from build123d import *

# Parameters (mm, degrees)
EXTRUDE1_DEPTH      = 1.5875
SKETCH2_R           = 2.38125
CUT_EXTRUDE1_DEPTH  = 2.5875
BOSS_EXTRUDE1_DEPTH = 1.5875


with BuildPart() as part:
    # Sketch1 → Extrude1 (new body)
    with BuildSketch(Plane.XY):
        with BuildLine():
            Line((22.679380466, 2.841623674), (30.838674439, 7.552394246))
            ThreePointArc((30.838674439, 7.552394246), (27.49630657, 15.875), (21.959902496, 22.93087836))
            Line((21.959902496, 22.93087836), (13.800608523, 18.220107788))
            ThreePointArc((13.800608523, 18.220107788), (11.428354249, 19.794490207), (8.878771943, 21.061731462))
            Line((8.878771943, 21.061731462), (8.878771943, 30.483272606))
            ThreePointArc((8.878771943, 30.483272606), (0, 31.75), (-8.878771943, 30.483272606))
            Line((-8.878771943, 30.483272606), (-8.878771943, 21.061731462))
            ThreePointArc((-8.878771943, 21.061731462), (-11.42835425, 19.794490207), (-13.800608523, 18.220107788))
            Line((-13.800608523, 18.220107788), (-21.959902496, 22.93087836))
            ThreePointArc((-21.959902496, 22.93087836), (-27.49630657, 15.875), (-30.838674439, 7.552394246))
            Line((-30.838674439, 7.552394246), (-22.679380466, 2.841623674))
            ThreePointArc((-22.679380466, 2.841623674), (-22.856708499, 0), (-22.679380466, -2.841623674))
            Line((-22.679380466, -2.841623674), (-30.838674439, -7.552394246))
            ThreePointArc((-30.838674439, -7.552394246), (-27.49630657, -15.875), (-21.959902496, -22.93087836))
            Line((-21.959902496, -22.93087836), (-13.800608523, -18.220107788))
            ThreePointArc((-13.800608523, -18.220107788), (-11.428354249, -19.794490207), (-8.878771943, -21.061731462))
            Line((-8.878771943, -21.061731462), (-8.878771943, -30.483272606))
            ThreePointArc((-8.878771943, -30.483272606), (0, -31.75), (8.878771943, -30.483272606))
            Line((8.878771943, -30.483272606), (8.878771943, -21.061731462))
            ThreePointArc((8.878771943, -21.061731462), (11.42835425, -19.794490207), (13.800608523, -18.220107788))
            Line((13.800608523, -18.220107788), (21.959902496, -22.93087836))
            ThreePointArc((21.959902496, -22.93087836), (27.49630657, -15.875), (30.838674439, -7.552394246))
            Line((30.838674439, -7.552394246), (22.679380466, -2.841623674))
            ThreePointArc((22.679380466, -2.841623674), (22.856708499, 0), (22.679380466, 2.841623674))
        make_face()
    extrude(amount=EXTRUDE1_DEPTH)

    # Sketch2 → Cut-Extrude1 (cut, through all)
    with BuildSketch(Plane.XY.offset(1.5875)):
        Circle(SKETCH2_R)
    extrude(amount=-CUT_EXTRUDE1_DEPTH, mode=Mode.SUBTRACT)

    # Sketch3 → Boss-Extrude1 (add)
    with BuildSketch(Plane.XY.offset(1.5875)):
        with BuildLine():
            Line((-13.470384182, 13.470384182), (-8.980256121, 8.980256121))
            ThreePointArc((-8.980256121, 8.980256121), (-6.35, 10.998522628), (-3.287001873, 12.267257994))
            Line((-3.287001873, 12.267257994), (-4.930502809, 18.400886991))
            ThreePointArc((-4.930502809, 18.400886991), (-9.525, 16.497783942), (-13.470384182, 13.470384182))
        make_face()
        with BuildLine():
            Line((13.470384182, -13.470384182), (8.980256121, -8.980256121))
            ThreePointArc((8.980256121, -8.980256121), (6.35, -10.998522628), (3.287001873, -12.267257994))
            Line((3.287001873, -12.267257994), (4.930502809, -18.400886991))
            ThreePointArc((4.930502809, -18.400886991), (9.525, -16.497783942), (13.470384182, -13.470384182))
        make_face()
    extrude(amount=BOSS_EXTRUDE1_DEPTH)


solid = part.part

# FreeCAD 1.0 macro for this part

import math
import FreeCAD as App
import Part
import Sketcher
from FreeCAD import Vector
Q = App.Units.Quantity

doc = App.newDocument("Part")
params = doc.addObject("Spreadsheet::Sheet", "Params")
for row, (alias, value) in enumerate([
    ("sketch1_radius", "1.25 in"),
    ("pad1_length", "0.0625 in"),
    ("sketch2_diameter", "0.1875 in"),
    ("sketch3_radius", "0.5 in"),
    ("sketch3_radius2", "0.75 in"),
    ("pad2_length", "0.0625 in"),
], start=1):
    params.set(f"A{row}", alias)
    params.set(f"B{row}", "=" + value)
    params.setAlias(f"B{row}", alias)

body = doc.addObject("PartDesign::Body", "Body")

sketch1 = body.newObject("Sketcher::SketchObject", "Sketch")
sketch1.AttachmentSupport = (doc.getObject("XY_Plane"), [""])
sketch1.MapMode = "FlatFace"
sketch1.addGeometry(Part.LineSegment(Vector(22.67938, 2.841624, 0), Vector(30.838674, 7.552394, 0)), False)
sketch1.addGeometry(Part.ArcOfCircle(Part.Circle(Vector(0, 0, 0), Vector(0, 0, 1), 31.75), math.radians(13.7609), math.radians(46.2391)), False)
sketch1.addGeometry(Part.LineSegment(Vector(21.959902, 22.930878, 0), Vector(13.800609, 18.220108, 0)), False)
sketch1.addGeometry(Part.ArcOfCircle(Part.Circle(Vector(0, 0, 0), Vector(0, 0, 1), 22.856709), math.radians(52.858315), math.radians(67.141685)), False)
sketch1.addGeometry(Part.LineSegment(Vector(8.878772, 21.061731, 0), Vector(8.878772, 30.483273, 0)), False)
sketch1.addGeometry(Part.ArcOfCircle(Part.Circle(Vector(0, 0, 0), Vector(0, 0, 1), 31.75), math.radians(73.7609), math.radians(106.2391)), False)
sketch1.addGeometry(Part.LineSegment(Vector(-8.878772, 30.483273, 0), Vector(-8.878772, 21.061731, 0)), False)
sketch1.addGeometry(Part.ArcOfCircle(Part.Circle(Vector(0, 0, 0), Vector(0, 0, 1), 22.856708), math.radians(112.858315), math.radians(127.141685)), False)
sketch1.addGeometry(Part.LineSegment(Vector(-13.800609, 18.220108, 0), Vector(-21.959902, 22.930878, 0)), False)
sketch1.addGeometry(Part.ArcOfCircle(Part.Circle(Vector(0, 0, 0), Vector(0, 0, 1), 31.75), math.radians(133.7609), math.radians(166.2391)), False)
sketch1.addGeometry(Part.LineSegment(Vector(-30.838674, 7.552394, 0), Vector(-22.67938, 2.841624, 0)), False)
sketch1.addGeometry(Part.ArcOfCircle(Part.Circle(Vector(0, 0, 0), Vector(0, 0, 1), 22.856709), math.radians(172.858315), math.radians(187.141685)), False)
sketch1.addGeometry(Part.LineSegment(Vector(-22.67938, -2.841624, 0), Vector(-30.838674, -7.552394, 0)), False)
sketch1.addGeometry(Part.ArcOfCircle(Part.Circle(Vector(0, 0, 0), Vector(0, 0, 1), 31.75), math.radians(-166.2391), math.radians(-133.7609)), False)
sketch1.addGeometry(Part.LineSegment(Vector(-21.959902, -22.930878, 0), Vector(-13.800609, -18.220108, 0)), False)
sketch1.addGeometry(Part.ArcOfCircle(Part.Circle(Vector(0, 0, 0), Vector(0, 0, 1), 22.856709), math.radians(-127.141685), math.radians(-112.858315)), False)
sketch1.addGeometry(Part.LineSegment(Vector(-8.878772, -21.061731, 0), Vector(-8.878772, -30.483273, 0)), False)
sketch1.addGeometry(Part.ArcOfCircle(Part.Circle(Vector(0, 0, 0), Vector(0, 0, 1), 31.75), math.radians(-106.2391), math.radians(-73.7609)), False)
sketch1.addGeometry(Part.LineSegment(Vector(8.878772, -30.483273, 0), Vector(8.878772, -21.061731, 0)), False)
sketch1.addGeometry(Part.ArcOfCircle(Part.Circle(Vector(0, 0, 0), Vector(0, 0, 1), 22.856708), math.radians(-67.141685), math.radians(-52.858315)), False)
sketch1.addGeometry(Part.LineSegment(Vector(13.800609, -18.220108, 0), Vector(21.959902, -22.930878, 0)), False)
sketch1.addGeometry(Part.ArcOfCircle(Part.Circle(Vector(0, 0, 0), Vector(0, 0, 1), 31.75), math.radians(-46.2391), math.radians(-13.7609)), False)
sketch1.addGeometry(Part.LineSegment(Vector(30.838674, -7.552394, 0), Vector(22.67938, -2.841624, 0)), False)
sketch1.addGeometry(Part.ArcOfCircle(Part.Circle(Vector(0, 0, 0), Vector(0, 0, 1), 22.856709), math.radians(-7.141685), math.radians(7.141685)), False)
sketch1.addConstraint(Sketcher.Constraint("Coincident", 0, 2, 1, 1))
sketch1.addConstraint(Sketcher.Constraint("Coincident", 1, 2, 2, 1))
sketch1.addConstraint(Sketcher.Constraint("Coincident", 2, 2, 3, 1))
sketch1.addConstraint(Sketcher.Constraint("Coincident", 3, 2, 4, 1))
sketch1.addConstraint(Sketcher.Constraint("Coincident", 4, 2, 5, 1))
sketch1.addConstraint(Sketcher.Constraint("Coincident", 5, 2, 6, 1))
sketch1.addConstraint(Sketcher.Constraint("Coincident", 6, 2, 7, 1))
sketch1.addConstraint(Sketcher.Constraint("Coincident", 7, 2, 8, 1))
sketch1.addConstraint(Sketcher.Constraint("Coincident", 8, 2, 9, 1))
sketch1.addConstraint(Sketcher.Constraint("Coincident", 9, 2, 10, 1))
sketch1.addConstraint(Sketcher.Constraint("Coincident", 10, 2, 11, 1))
sketch1.addConstraint(Sketcher.Constraint("Coincident", 11, 2, 12, 1))
sketch1.addConstraint(Sketcher.Constraint("Coincident", 12, 2, 13, 1))
sketch1.addConstraint(Sketcher.Constraint("Coincident", 13, 2, 14, 1))
sketch1.addConstraint(Sketcher.Constraint("Coincident", 14, 2, 15, 1))
sketch1.addConstraint(Sketcher.Constraint("Coincident", 15, 2, 16, 1))
sketch1.addConstraint(Sketcher.Constraint("Coincident", 16, 2, 17, 1))
sketch1.addConstraint(Sketcher.Constraint("Coincident", 17, 2, 18, 1))
sketch1.addConstraint(Sketcher.Constraint("Coincident", 18, 2, 19, 1))
sketch1.addConstraint(Sketcher.Constraint("Coincident", 19, 2, 20, 1))
sketch1.addConstraint(Sketcher.Constraint("Coincident", 20, 2, 21, 1))
sketch1.addConstraint(Sketcher.Constraint("Coincident", 21, 2, 22, 1))
sketch1.addConstraint(Sketcher.Constraint("Coincident", 22, 2, 23, 1))
sketch1.addConstraint(Sketcher.Constraint("Coincident", 23, 2, 0, 1))
sketch1.addConstraint(Sketcher.Constraint("Vertical", 4))
sketch1.addConstraint(Sketcher.Constraint("Vertical", 6))
sketch1.addConstraint(Sketcher.Constraint("Vertical", 16))
sketch1.addConstraint(Sketcher.Constraint("Vertical", 18))
sketch1.addConstraint(Sketcher.Constraint("Coincident", 1, 3, -1, 1))
sketch1.addConstraint(Sketcher.Constraint("Coincident", 3, 3, -1, 1))
sketch1.addConstraint(Sketcher.Constraint("Coincident", 5, 3, -1, 1))
sketch1.addConstraint(Sketcher.Constraint("Coincident", 7, 3, -1, 1))
sketch1.addConstraint(Sketcher.Constraint("Coincident", 9, 3, -1, 1))
sketch1.addConstraint(Sketcher.Constraint("Coincident", 11, 3, -1, 1))
sketch1.addConstraint(Sketcher.Constraint("Coincident", 13, 3, -1, 1))
sketch1.addConstraint(Sketcher.Constraint("Coincident", 15, 3, -1, 1))
sketch1.addConstraint(Sketcher.Constraint("Coincident", 17, 3, -1, 1))
sketch1.addConstraint(Sketcher.Constraint("Coincident", 19, 3, -1, 1))
sketch1.addConstraint(Sketcher.Constraint("Coincident", 21, 3, -1, 1))
sketch1.addConstraint(Sketcher.Constraint("Coincident", 23, 3, -1, 1))
sketch1.addConstraint(Sketcher.Constraint("Equal", 1, 5))
sketch1.addConstraint(Sketcher.Constraint("Equal", 3, 7))
sketch1.addConstraint(Sketcher.Constraint("Equal", 5, 9))
sketch1.addConstraint(Sketcher.Constraint("Equal", 7, 11))
sketch1.addConstraint(Sketcher.Constraint("Equal", 9, 13))
sketch1.addConstraint(Sketcher.Constraint("Equal", 11, 15))
sketch1.addConstraint(Sketcher.Constraint("Equal", 13, 17))
sketch1.addConstraint(Sketcher.Constraint("Equal", 15, 19))
sketch1.addConstraint(Sketcher.Constraint("Equal", 17, 21))
sketch1.addConstraint(Sketcher.Constraint("Equal", 19, 23))
sketch1.addConstraint(Sketcher.Constraint("Parallel", 0, 2))
sketch1.addConstraint(Sketcher.Constraint("Parallel", 8, 10))
sketch1.addConstraint(Sketcher.Constraint("Parallel", 2, 12))
sketch1.addConstraint(Sketcher.Constraint("Parallel", 12, 14))
sketch1.addConstraint(Sketcher.Constraint("Parallel", 10, 20))
sketch1.addConstraint(Sketcher.Constraint("Parallel", 20, 22))
sketch1.addConstraint(Sketcher.Constraint("Horizontal", 4, 2, 5, 2))
sketch1.addConstraint(Sketcher.Constraint("Horizontal", 2, 2, 7, 2))
sketch1.addConstraint(Sketcher.Constraint("Horizontal", 1, 2, 8, 2))
sketch1.addConstraint(Sketcher.Constraint("Horizontal", 0, 2, 9, 2))
sketch1.addConstraint(Sketcher.Constraint("Horizontal", 16, 2, 17, 2))
sketch1.addConstraint(Sketcher.Constraint("Horizontal", 14, 2, 19, 2))
sketch1.addConstraint(Sketcher.Constraint("Horizontal", 12, 2, 21, 2))
sketch1.addConstraint(Sketcher.Constraint("Vertical", 10, 2, 11, 2))
sketch1.addConstraint(Sketcher.Constraint("Vertical", 8, 2, 13, 2))
sketch1.addConstraint(Sketcher.Constraint("Vertical", 6, 2, 15, 2))
sketch1.addConstraint(Sketcher.Constraint("Equal", 0, 2))
sketch1.addConstraint(Sketcher.Constraint("Radius", 1, Q("1.25 in")))
sketch1.addConstraint(Sketcher.Constraint("Angle", 0, Q("30 deg")))
sketch1.addConstraint(Sketcher.Constraint("Radius", 3, Q("22.856709 mm")))
sketch1.addConstraint(Sketcher.Constraint("DistanceY", 4, 1, 4, 2, Q("9.421541 mm")))
sketch1.addConstraint(Sketcher.Constraint("Distance", 0, Q("9.421541 mm")))
sketch1.setExpression("Constraints[67]", "Params.sketch1_radius")
pad1 = body.newObject("PartDesign::Pad", "Pad")
pad1.Profile = sketch1
pad1.setExpression("Length", "Params.pad1_length")

sketch2 = body.newObject("Sketcher::SketchObject", "Sketch001")
sketch2.AttachmentSupport = (doc.getObject("XY_Plane"), [""])
sketch2.MapMode = "FlatFace"
sketch2.AttachmentOffset = App.Placement(Vector(0, 0, 0.0625 * 25.4), App.Rotation())
sketch2.addGeometry(Part.Circle(Vector(0, 0, 0), Vector(0, 0, 1), 2.38125), False)
sketch2.addConstraint(Sketcher.Constraint("Coincident", 0, 3, -1, 1))
sketch2.addConstraint(Sketcher.Constraint("Diameter", 0, Q("0.1875 in")))
sketch2.setExpression("Constraints[1]", "Params.sketch2_diameter")
pocket1 = body.newObject("PartDesign::Pocket", "Pocket")
pocket1.Profile = sketch2
pocket1.Type = "ThroughAll"

sketch3 = body.newObject("Sketcher::SketchObject", "Sketch002")
sketch3.AttachmentSupport = (doc.getObject("XY_Plane"), [""])
sketch3.MapMode = "FlatFace"
sketch3.AttachmentOffset = App.Placement(Vector(0, 0, 0.0625 * 25.4), App.Rotation())
sketch3.addGeometry(Part.LineSegment(Vector(-13.470384, 13.470384, 0), Vector(-8.980256, 8.980256, 0)), False)
sketch3.addGeometry(Part.ArcOfCircle(Part.Circle(Vector(0, 0, 0), Vector(0, 0, 1), 12.7), math.radians(105), math.radians(135)), False)
sketch3.addGeometry(Part.LineSegment(Vector(-3.287002, 12.267258, 0), Vector(-4.930503, 18.400887, 0)), False)
sketch3.addGeometry(Part.ArcOfCircle(Part.Circle(Vector(0, 0, 0), Vector(0, 0, 1), 19.05), math.radians(105), math.radians(135)), False)
sketch3.addGeometry(Part.LineSegment(Vector(13.470384, -13.470384, 0), Vector(8.980256, -8.980256, 0)), False)
sketch3.addGeometry(Part.ArcOfCircle(Part.Circle(Vector(0, 0, 0), Vector(0, 0, 1), 12.7), math.radians(-75), math.radians(-45)), False)
sketch3.addGeometry(Part.LineSegment(Vector(3.287002, -12.267258, 0), Vector(4.930503, -18.400887, 0)), False)
sketch3.addGeometry(Part.ArcOfCircle(Part.Circle(Vector(0, 0, 0), Vector(0, 0, 1), 19.05), math.radians(-75), math.radians(-45)), False)
sketch3.addConstraint(Sketcher.Constraint("Coincident", 0, 2, 1, 2))
sketch3.addConstraint(Sketcher.Constraint("Coincident", 1, 1, 2, 1))
sketch3.addConstraint(Sketcher.Constraint("Coincident", 2, 2, 3, 1))
sketch3.addConstraint(Sketcher.Constraint("Coincident", 3, 2, 0, 1))
sketch3.addConstraint(Sketcher.Constraint("Coincident", 4, 2, 5, 2))
sketch3.addConstraint(Sketcher.Constraint("Coincident", 5, 1, 6, 1))
sketch3.addConstraint(Sketcher.Constraint("Coincident", 6, 2, 7, 1))
sketch3.addConstraint(Sketcher.Constraint("Coincident", 7, 2, 4, 1))
sketch3.addConstraint(Sketcher.Constraint("Coincident", 1, 3, -1, 1))
sketch3.addConstraint(Sketcher.Constraint("Coincident", 3, 3, -1, 1))
sketch3.addConstraint(Sketcher.Constraint("Coincident", 5, 3, -1, 1))
sketch3.addConstraint(Sketcher.Constraint("Coincident", 7, 3, -1, 1))
sketch3.addConstraint(Sketcher.Constraint("Equal", 1, 5))
sketch3.addConstraint(Sketcher.Constraint("Equal", 3, 7))
sketch3.addConstraint(Sketcher.Constraint("Parallel", 0, 4))
sketch3.addConstraint(Sketcher.Constraint("Parallel", 2, 6))
sketch3.addConstraint(Sketcher.Constraint("Radius", 1, Q("0.5 in")))
sketch3.addConstraint(Sketcher.Constraint("Radius", 3, Q("0.75 in")))
sketch3.addConstraint(Sketcher.Constraint("Angle", 0, Q("-45 deg")))
sketch3.addConstraint(Sketcher.Constraint("Angle", 2, Q("105 deg")))
sketch3.addConstraint(Sketcher.Constraint("DistanceX", 1, 1, -1, 1, Q("3.287002 mm")))
sketch3.addConstraint(Sketcher.Constraint("DistanceX", -1, 1, 5, 1, Q("3.287002 mm")))
sketch3.addConstraint(Sketcher.Constraint("DistanceY", 0, 2, 1, 1, Q("3.287002 mm")))
sketch3.addConstraint(Sketcher.Constraint("DistanceY", 5, 1, 4, 2, Q("3.287002 mm")))
sketch3.setExpression("Constraints[16]", "Params.sketch3_radius")
sketch3.setExpression("Constraints[17]", "Params.sketch3_radius2")
pad2 = body.newObject("PartDesign::Pad", "Pad001")
pad2.Profile = sketch3
pad2.setExpression("Length", "Params.pad2_length")

doc.recompute()
